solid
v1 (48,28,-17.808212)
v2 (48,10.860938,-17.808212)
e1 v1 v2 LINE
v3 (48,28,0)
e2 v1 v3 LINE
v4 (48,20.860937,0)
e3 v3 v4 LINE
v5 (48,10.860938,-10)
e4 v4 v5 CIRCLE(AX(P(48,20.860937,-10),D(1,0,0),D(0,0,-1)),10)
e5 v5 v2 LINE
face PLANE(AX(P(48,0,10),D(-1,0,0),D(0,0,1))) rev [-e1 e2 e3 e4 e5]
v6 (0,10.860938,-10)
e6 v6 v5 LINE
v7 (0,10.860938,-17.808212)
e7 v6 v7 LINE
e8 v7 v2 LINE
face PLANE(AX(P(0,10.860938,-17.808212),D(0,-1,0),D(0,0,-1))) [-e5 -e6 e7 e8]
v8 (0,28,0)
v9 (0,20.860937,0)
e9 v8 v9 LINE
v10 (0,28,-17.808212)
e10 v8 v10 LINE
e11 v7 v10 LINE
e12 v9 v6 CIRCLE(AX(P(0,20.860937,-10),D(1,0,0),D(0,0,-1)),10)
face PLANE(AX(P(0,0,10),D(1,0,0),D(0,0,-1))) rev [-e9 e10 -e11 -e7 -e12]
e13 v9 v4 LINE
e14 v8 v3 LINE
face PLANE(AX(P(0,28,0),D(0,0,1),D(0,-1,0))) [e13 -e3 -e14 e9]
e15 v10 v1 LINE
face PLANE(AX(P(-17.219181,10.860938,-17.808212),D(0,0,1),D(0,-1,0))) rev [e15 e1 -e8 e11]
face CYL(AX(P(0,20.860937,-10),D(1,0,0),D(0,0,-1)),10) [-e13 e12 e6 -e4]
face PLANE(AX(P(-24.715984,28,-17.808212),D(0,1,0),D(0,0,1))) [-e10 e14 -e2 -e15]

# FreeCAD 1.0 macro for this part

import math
import FreeCAD as App
import Part
import Sketcher
from FreeCAD import Vector
Q = App.Units.Quantity


def edges_at(feature, points):
    """Names of the edges that pass closest to the given points."""
    edges = feature.Shape.Edges
    near = lambda p: min(range(len(edges)), key=lambda i: edges[i].distToShape(Part.Vertex(*p))[0])
    return sorted({f"Edge{near(p) + 1}" for p in points})

doc = App.newDocument("Part")
body = doc.addObject("PartDesign::Body", "Body")

sketch1 = body.newObject("Sketcher::SketchObject", "Sketch")
sketch1.AttachmentSupport = (doc.getObject("XY_Plane"), [""])
sketch1.MapMode = "FlatFace"
sketch1.addGeometry([
    Part.LineSegment(Vector(0, 53, 0), Vector(0, 0, 0)),
    Part.LineSegment(Vector(0, 0, 0), Vector(48, 0, 0)),
    Part.LineSegment(Vector(48, 0, 0), Vector(48, 53, 0)),
    Part.LineSegment(Vector(48, 53, 0), Vector(0, 53, 0)),
], False)
sketch1.addConstraint([
    Sketcher.Constraint("Coincident", 0, 2, 1, 1),
    Sketcher.Constraint("Coincident", 1, 2, 2, 1),
    Sketcher.Constraint("Coincident", 2, 2, 3, 1),
    Sketcher.Constraint("Coincident", 3, 2, 0, 1),
    Sketcher.Constraint("Vertical", 0),
    Sketcher.Constraint("Horizontal", 1),
    Sketcher.Constraint("Vertical", 2),
    Sketcher.Constraint("Horizontal", 3),
    Sketcher.Constraint("Coincident", 0, 2, -1, 1),
    Sketcher.Constraint("DistanceX", 1, 1, 1, 2, Q("48 mm")),
    Sketcher.Constraint("DistanceY", 0, 2, 0, 1, Q("53 mm")),
])
pad1 = body.newObject("PartDesign::Pad", "Pad")
pad1.Profile = sketch1
pad1.Length = 10

sketch2 = body.newObject("Sketcher::SketchObject", "Sketch001")
sketch2.AttachmentSupport = (doc.getObject("XY_Plane"), [""])
sketch2.MapMode = "FlatFace"
sketch2.addGeometry([
    Part.LineSegment(Vector(48, 0, 0), Vector(48, -6, 0)),
    Part.LineSegment(Vector(48, -6, 0), Vector(0, -6, 0)),
    Part.LineSegment(Vector(0, -6, 0), Vector(0, 0, 0)),
    Part.LineSegment(Vector(0, 0, 0), Vector(48, 0, 0)),
], False)
sketch2.addConstraint([
    Sketcher.Constraint("Coincident", 0, 2, 1, 1),
    Sketcher.Constraint("Coincident", 1, 2, 2, 1),
    Sketcher.Constraint("Coincident", 2, 2, 3, 1),
    Sketcher.Constraint("Coincident", 3, 2, 0, 1),
    Sketcher.Constraint("Vertical", 0),
    Sketcher.Constraint("Horizontal", 1),
    Sketcher.Constraint("Vertical", 2),
    Sketcher.Constraint("Horizontal", 3),
    Sketcher.Constraint("Coincident", 2, 2, -1, 1),
    Sketcher.Constraint("DistanceX", 1, 2, 1, 1, Q("48 mm")),
    Sketcher.Constraint("DistanceY", 0, 2, 0, 1, Q("5.616325 mm")),
])
pad2 = body.newObject("PartDesign::Pad", "Pad001")
pad2.Profile = sketch2
pad2.Length = 33.191788

sketch3 = body.newObject("Sketcher::SketchObject", "Sketch002")
sketch3.AttachmentSupport = (doc.getObject("XY_Plane"), [""])
sketch3.MapMode = "FlatFace"
sketch3.AttachmentOffset = App.Placement(Vector(0, 0, 10), App.Rotation())
sketch3.addGeometry([
    Part.LineSegment(Vector(0, 53, 0), Vector(0, 43, 0)),
    Part.LineSegment(Vector(0, 43, 0), Vector(4, 43, 0)),
    Part.LineSegment(Vector(4, 43, 0), Vector(4, 53, 0)),
    Part.LineSegment(Vector(4, 53, 0), Vector(0, 53, 0)),
    Part.LineSegment(Vector(44, 53, 0), Vector(44, 43, 0)),
    Part.LineSegment(Vector(44, 43, 0), Vector(48, 43, 0)),
    Part.LineSegment(Vector(48, 43, 0), Vector(48, 53, 0)),
    Part.LineSegment(Vector(48, 53, 0), Vector(44, 53, 0)),
], False)
sketch3.addConstraint([
    Sketcher.Constraint("Coincident", 0, 2, 1, 1),
    Sketcher.Constraint("Coincident", 1, 2, 2, 1),
    Sketcher.Constraint("Coincident", 2, 2, 3, 1),
    Sketcher.Constraint("Coincident", 3, 2, 0, 1),
    Sketcher.Constraint("Coincident", 4, 2, 5, 1),
    Sketcher.Constraint("Coincident", 5, 2, 6, 1),
    Sketcher.Constraint("Coincident", 6, 2, 7, 1),
    Sketcher.Constraint("Coincident", 7, 2, 4, 1),
    Sketcher.Constraint("Vertical", 0),
    Sketcher.Constraint("Horizontal", 1),
    Sketcher.Constraint("Vertical", 2),
    Sketcher.Constraint("Horizontal", 3),
    Sketcher.Constraint("Vertical", 4),
    Sketcher.Constraint("Horizontal", 5),
    Sketcher.Constraint("Vertical", 6),
    Sketcher.Constraint("Horizontal", 7),
    Sketcher.Constraint("PointOnObject", 0, 2, -2),
    Sketcher.Constraint("Horizontal", 1, 2, 4, 2),
    Sketcher.Constraint("Horizontal", 3, 2, 6, 2),
    Sketcher.Constraint("Equal", 3, 5),
    Sketcher.Constraint("DistanceX", 1, 1, 1, 2, Q("4 mm")),
    Sketcher.Constraint("DistanceY", 0, 2, 0, 1, Q("10 mm")),
    Sketcher.Constraint("DistanceY", -1, 1, 0, 2, Q("43 mm")),
    Sketcher.Constraint("DistanceX", -1, 1, 4, 2, Q("44 mm")),
])
pad3 = body.newObject("PartDesign::Pad", "Pad002")
pad3.Profile = sketch3
pad3.Length = 40

sketch4 = body.newObject("Sketcher::SketchObject", "Sketch003")
sketch4.AttachmentSupport = (doc.getObject("XY_Plane"), [""])
sketch4.MapMode = "FlatFace"
sketch4.AttachmentOffset = App.Placement(Vector(0, 0, 10), App.Rotation())
sketch4.addGeometry([
    Part.LineSegment(Vector(0, 11, 0), Vector(0, 0, 0)),
    Part.LineSegment(Vector(0, 0, 0), Vector(48, 0, 0)),
    Part.LineSegment(Vector(48, 0, 0), Vector(48, 11, 0)),
    Part.LineSegment(Vector(48, 11, 0), Vector(0, 11, 0)),
], False)
sketch4.addConstraint([
    Sketcher.Constraint("Coincident", 0, 2, 1, 1),
    Sketcher.Constraint("Coincident", 1, 2, 2, 1),
    Sketcher.Constraint("Coincident", 2, 2, 3, 1),
    Sketcher.Constraint("Coincident", 3, 2, 0, 1),
    Sketcher.Constraint("Vertical", 0),
    Sketcher.Constraint("Horizontal", 1),
    Sketcher.Constraint("Vertical", 2),
    Sketcher.Constraint("Horizontal", 3),
    Sketcher.Constraint("Coincident", 0, 2, -1, 1),
    Sketcher.Constraint("DistanceX", 1, 1, 1, 2, Q("48 mm")),
    Sketcher.Constraint("DistanceY", 0, 2, 0, 1, Q("10.860938 mm")),
])
pad4 = body.newObject("PartDesign::Pad", "Pad003")
pad4.Profile = sketch4
pad4.Length = 23.191788

sketch5 = body.newObject("Sketcher::SketchObject", "Sketch004")
sketch5.AttachmentSupport = (doc.getObject("XZ_Plane"), [""])
sketch5.MapMode = "FlatFace"
sketch5.AttachmentOffset = App.Placement(Vector(0, 0, 5.616325), App.Rotation())
sketch5.addGeometry([
    Part.LineSegment(Vector(0, 33, 0), Vector(0, 28, 0)),
    Part.LineSegment(Vector(0, 28, 0), Vector(48, 28, 0)),
    Part.LineSegment(Vector(48, 28, 0), Vector(48, 33, 0)),
    Part.LineSegment(Vector(48, 33, 0), Vector(0, 33, 0)),
], False)
sketch5.addConstraint([
    Sketcher.Constraint("Coincident", 0, 2, 1, 1),
    Sketcher.Constraint("Coincident", 1, 2, 2, 1),
    Sketcher.Constraint("Coincident", 2, 2, 3, 1),
    Sketcher.Constraint("Coincident", 3, 2, 0, 1),
    Sketcher.Constraint("Vertical", 0),
    Sketcher.Constraint("Horizontal", 1),
    Sketcher.Constraint("Vertical", 2),
    Sketcher.Constraint("Horizontal", 3),
    Sketcher.Constraint("PointOnObject", 0, 2, -2),
    Sketcher.Constraint("DistanceX", 1, 1, 1, 2, Q("48 mm")),
    Sketcher.Constraint("DistanceY", 0, 2, 0, 1, Q("5 mm")),
    Sketcher.Constraint("DistanceY", -1, 1, 0, 2, Q("28.191788 mm")),
])
pad5 = body.newObject("PartDesign::Pad", "Pad004")
pad5.Profile = sketch5
pad5.Length = 42.3

sketch6 = body.newObject("Sketcher::SketchObject", "Sketch005")
sketch6.AttachmentSupport = (doc.getObject("YZ_Plane"), [""])
sketch6.MapMode = "FlatFace"
sketch6.addGeometry([
    Part.LineSegment(Vector(11, -13, 0), Vector(-6, -13, 0)),
    Part.LineSegment(Vector(-6, -13, 0), Vector(-6, 0, 0)),
    Part.LineSegment(Vector(-6, 0, 0), Vector(11, 0, 0)),
    Part.LineSegment(Vector(11, 0, 0), Vector(11, -13, 0)),
], False)
sketch6.addConstraint([
    Sketcher.Constraint("Coincident", 0, 2, 1, 1),
    Sketcher.Constraint("Coincident", 1, 2, 2, 1),
    Sketcher.Constraint("Coincident", 2, 2, 3, 1),
    Sketcher.Constraint("Coincident", 3, 2, 0, 1),
    Sketcher.Constraint("Horizontal", 0),
    Sketcher.Constraint("Vertical", 1),
    Sketcher.Constraint("Horizontal", 2),
    Sketcher.Constraint("Vertical", 3),
    Sketcher.Constraint("PointOnObject", 1, 2, -1),
    Sketcher.Constraint("DistanceX", 0, 2, 0, 1, Q("16.477263 mm")),
    Sketcher.Constraint("DistanceY", 1, 1, 1, 2, Q("12.808212 mm")),
    Sketcher.Constraint("DistanceX", 0, 2, -1, 1, Q("5.616325 mm")),
])
pad6 = body.newObject("PartDesign::Pad", "Pad005")
pad6.Profile = sketch6
pad6.Length = 48

sketch7 = body.newObject("Sketcher::SketchObject", "Sketch006")
sketch7.AttachmentSupport = (doc.getObject("XY_Plane"), [""])
sketch7.MapMode = "FlatFace"
sketch7.AttachmentOffset = App.Placement(Vector(0, 0, 28.191788), App.Rotation())
sketch7.addGeometry(Part.Circle(Vector(24, -27, 0), Vector(0, 0, 1), 12), False)
sketch7.addConstraint([
    Sketcher.Constraint("Diameter", 0, Q("23 mm")),
    Sketcher.Constraint("DistanceX", -1, 1, 0, 3, Q("24 mm")),
    Sketcher.Constraint("DistanceY", 0, 3, -1, 1, Q("26.616325 mm")),
])
pocket1 = body.newObject("PartDesign::Pocket", "Pocket")
pocket1.Profile = sketch7
pocket1.Type = "UpToFirst"
pocket1.Reversed = True

sketch8 = body.newObject("Sketcher::SketchObject", "Sketch007")
sketch8.AttachmentSupport = (doc.getObject("XY_Plane"), [""])
sketch8.MapMode = "FlatFace"
sketch8.AttachmentOffset = App.Placement(Vector(0, 0, 28.191788), App.Rotation())
sketch8.addGeometry(Part.Circle(Vector(39.5, -11.1, 0), Vector(0, 0, 1), 2), False)
sketch8.addConstraint([
    Sketcher.Constraint("Diameter", 0, Q("4 mm")),
    Sketcher.Constraint("DistanceX", -1, 1, 0, 3, Q("39.5 mm")),
    Sketcher.Constraint("DistanceY", 0, 3, -1, 1, Q("11.116325 mm")),
])
pocket2 = body.newObject("PartDesign::Pocket", "Pocket001")
pocket2.Profile = sketch8
pocket2.Type = "UpToFirst"
pocket2.Reversed = True

sketch9 = body.newObject("Sketcher::SketchObject", "Sketch008")
sketch9.AttachmentSupport = (doc.getObject("XY_Plane"), [""])
sketch9.MapMode = "FlatFace"
sketch9.AttachmentOffset = App.Placement(Vector(0, 0, 28.191788), App.Rotation())
sketch9.addGeometry(Part.Circle(Vector(39.5, -42.1, 0), Vector(0, 0, 1), 2), False)
sketch9.addConstraint([
    Sketcher.Constraint("Diameter", 0, Q("4 mm")),
    Sketcher.Constraint("DistanceX", -1, 1, 0, 3, Q("39.5 mm")),
    Sketcher.Constraint("DistanceY", 0, 3, -1, 1, Q("42.116325 mm")),
])
pocket3 = body.newObject("PartDesign::Pocket", "Pocket002")
pocket3.Profile = sketch9
pocket3.Type = "UpToFirst"
pocket3.Reversed = True

sketch10 = body.newObject("Sketcher::SketchObject", "Sketch009")
sketch10.AttachmentSupport = (doc.getObject("XY_Plane"), [""])
sketch10.MapMode = "FlatFace"
sketch10.AttachmentOffset = App.Placement(Vector(0, 0, 28.191788), App.Rotation())
sketch10.addGeometry(Part.Circle(Vector(8.5, -11.1, 0), Vector(0, 0, 1), 2), False)
sketch10.addConstraint([
    Sketcher.Constraint("Diameter", 0, Q("4 mm")),
    Sketcher.Constraint("DistanceX", -1, 1, 0, 3, Q("8.5 mm")),
    Sketcher.Constraint("DistanceY", 0, 3, -1, 1, Q("11.116325 mm")),
])
pocket4 = body.newObject("PartDesign::Pocket", "Pocket003")
pocket4.Profile = sketch10
pocket4.Type = "UpToFirst"
pocket4.Reversed = True

sketch11 = body.newObject("Sketcher::SketchObject", "Sketch010")
sketch11.AttachmentSupport = (doc.getObject("XY_Plane"), [""])
sketch11.MapMode = "FlatFace"
sketch11.AttachmentOffset = App.Placement(Vector(0, 0, 28.191788), App.Rotation())
sketch11.addGeometry(Part.Circle(Vector(8.5, -42.1, 0), Vector(0, 0, 1), 2), False)
sketch11.addConstraint([
    Sketcher.Constraint("Diameter", 0, Q("4 mm")),
    Sketcher.Constraint("DistanceX", -1, 1, 0, 3, Q("8.5 mm")),
    Sketcher.Constraint("DistanceY", 0, 3, -1, 1, Q("42.116325 mm")),
])
pocket5 = body.newObject("PartDesign::Pocket", "Pocket004")
pocket5.Profile = sketch11
pocket5.Type = "UpToFirst"
pocket5.Reversed = True
doc.recompute()

fillet = body.newObject("PartDesign::Fillet", "Fillet")
fillet.Base = (pocket5, edges_at(pocket5, [(24, 10.861, 0)]))
fillet.Radius = 10
doc.recompute()

fillet2 = body.newObject("PartDesign::Fillet", "Fillet001")
fillet2.Base = (fillet, edges_at(fillet, [(2, 43, 10), (46, 43, 10)]))
fillet2.Radius = 4

sketch12 = body.newObject("Sketcher::SketchObject", "Sketch011")
sketch12.AttachmentSupport = (doc.getObject("YZ_Plane"), [""])
sketch12.MapMode = "FlatFace"
sketch12.AttachmentOffset = App.Placement(Vector(0, 0, 48), App.Rotation())
sketch12.addGeometry([
    Part.LineSegment(Vector(11, -13, 0), Vector(-6, -13, 0)),
    Part.LineSegment(Vector(-6, -13, 0), Vector(-6, -18, 0)),
    Part.LineSegment(Vector(-6, -18, 0), Vector(11, -18, 0)),
    Part.LineSegment(Vector(11, -18, 0), Vector(11, -13, 0)),
], False)
sketch12.addConstraint([
    Sketcher.Constraint("Coincident", 0, 2, 1, 1),
    Sketcher.Constraint("Coincident", 1, 2, 2, 1),
    Sketcher.Constraint("Coincident", 2, 2, 3, 1),
    Sketcher.Constraint("Coincident", 3, 2, 0, 1),
    Sketcher.Constraint("Horizontal", 0),
    Sketcher.Constraint("Vertical", 1),
    Sketcher.Constraint("Horizontal", 2),
    Sketcher.Constraint("Vertical", 3),
    Sketcher.Constraint("DistanceY", 1, 2, 1, 1, Q("5 mm")),
    Sketcher.Constraint("DistanceX", 0, 2, 0, 1, Q("16.477263 mm")),
    Sketcher.Constraint("DistanceX", 0, 2, -1, 1, Q("5.616325 mm")),
    Sketcher.Constraint("DistanceY", 0, 2, -1, 1, Q("12.808212 mm")),
])
pad7 = body.newObject("PartDesign::Pad", "Pad006")
pad7.Profile = sketch12
pad7.Length = 48
pad7.Reversed = True

sketch13 = body.newObject("Sketcher::SketchObject", "Sketch012")
sketch13.AttachmentSupport = (doc.getObject("XY_Plane"), [""])
sketch13.MapMode = "FlatFace"
sketch13.AttachmentOffset = App.Placement(Vector(0, 0, 10), App.Rotation())
sketch13.addGeometry([
    Part.LineSegment(Vector(12.4, 37, 0), Vector(9, 39, 0)),
    Part.LineSegment(Vector(9, 39, 0), Vector(5.6, 37, 0)),
    Part.LineSegment(Vector(5.6, 37, 0), Vector(5.6, 33, 0)),
    Part.LineSegment(Vector(5.6, 33, 0), Vector(9, 31, 0)),
    Part.LineSegment(Vector(9, 31, 0), Vector(12.4, 33, 0)),
    Part.LineSegment(Vector(12.4, 33, 0), Vector(12.4, 37, 0)),
    Part.LineSegment(Vector(35.6, 37, 0), Vector(35.6, 33, 0)),
    Part.LineSegment(Vector(35.6, 33, 0), Vector(39, 31, 0)),
    Part.LineSegment(Vector(39, 31, 0), Vector(42.4, 33, 0)),
    Part.LineSegment(Vector(42.4, 33, 0), Vector(42.4, 37, 0)),
    Part.LineSegment(Vector(42.4, 37, 0), Vector(39, 39, 0)),
    Part.LineSegment(Vector(39, 39, 0), Vector(35.6, 37, 0)),
], False)
sketch13.addConstraint([
    Sketcher.Constraint("Coincident", 0, 2, 1, 1),
    Sketcher.Constraint("Coincident", 1, 2, 2, 1),
    Sketcher.Constraint("Coincident", 2, 2, 3, 1),
    Sketcher.Constraint("Coincident", 3, 2, 4, 1),
    Sketcher.Constraint("Coincident", 4, 2, 5, 1),
    Sketcher.Constraint("Coincident", 5, 2, 0, 1),
    Sketcher.Constraint("Coincident", 6, 2, 7, 1),
    Sketcher.Constraint("Coincident", 7, 2, 8, 1),
    Sketcher.Constraint("Coincident", 8, 2, 9, 1),
    Sketcher.Constraint("Coincident", 9, 2, 10, 1),
    Sketcher.Constraint("Coincident", 10, 2, 11, 1),
    Sketcher.Constraint("Coincident", 11, 2, 6, 1),
    Sketcher.Constraint("Vertical", 2),
    Sketcher.Constraint("Vertical", 5),
    Sketcher.Constraint("Vertical", 6),
    Sketcher.Constraint("Vertical", 9),
    Sketcher.Constraint("Parallel", 0, 3),
    Sketcher.Constraint("Parallel", 1, 4),
    Sketcher.Constraint("Parallel", 3, 7),
    Sketcher.Constraint("Parallel", 4, 8),
    Sketcher.Constraint("Parallel", 7, 10),
    Sketcher.Constraint("Parallel", 8, 11),
    Sketcher.Constraint("Horizontal", 2, 2, 4, 2),
    Sketcher.Constraint("Horizontal", 1, 2, 5, 2),
    Sketcher.Constraint("Horizontal", 4, 2, 6, 2),
    Sketcher.Constraint("Horizontal", 3, 2, 7, 2),
    Sketcher.Constraint("Horizontal", 6, 2, 8, 2),
    Sketcher.Constraint("Horizontal", 5, 2, 9, 2),
    Sketcher.Constraint("Horizontal", 0, 2, 10, 2),
    Sketcher.Constraint("Vertical", 0, 2, 3, 2),
    Sketcher.Constraint("Angle", 0, Q("150 deg")),
    Sketcher.Constraint("DistanceX", -1, 1, 0, 2, Q("9 mm")),
    Sketcher.Constraint("DistanceX", -1, 1, 7, 2, Q("39 mm")),
    Sketcher.Constraint("DistanceX", -1, 1, 1, 2, Q("5.571 mm")),
    Sketcher.Constraint("DistanceY", 2, 2, 2, 1, Q("3.959468 mm")),
    Sketcher.Constraint("DistanceY", -1, 1, 0, 2, Q("38.959468 mm")),
])
pocket6 = body.newObject("PartDesign::Pocket", "Pocket005")
pocket6.Profile = sketch13
pocket6.Length = 6

sketch14 = body.newObject("Sketcher::SketchObject", "Sketch013")
sketch14.AttachmentSupport = (doc.getObject("XY_Plane"), [""])
sketch14.MapMode = "FlatFace"
sketch14.AttachmentOffset = App.Placement(Vector(0, 0, 4), App.Rotation())
sketch14.addGeometry([
    Part.Circle(Vector(9, 35, 0), Vector(0, 0, 1), 1.9),
    Part.Circle(Vector(39, 35, 0), Vector(0, 0, 1), 1.9),
], False)
sketch14.addConstraint([
    Sketcher.Constraint("Equal", 0, 1),
    Sketcher.Constraint("Horizontal", 0, 3, 1, 3),
    Sketcher.Constraint("DistanceX", -1, 1, 0, 3, Q("9 mm")),
    Sketcher.Constraint("DistanceY", -1, 1, 0, 3, Q("35 mm")),
    Sketcher.Constraint("DistanceX", -1, 1, 1, 3, Q("39 mm")),
    Sketcher.Constraint("Diameter", 0, Q("3.8608 mm")),
])
pocket7 = body.newObject("PartDesign::Pocket", "Pocket006")
pocket7.Profile = sketch14
pocket7.Length = 6

sketch15 = body.newObject("Sketcher::SketchObject", "Sketch014")
sketch15.AttachmentSupport = (doc.getObject("XZ_Plane"), [""])
sketch15.MapMode = "FlatFace"
sketch15.AttachmentOffset = App.Placement(Vector(0, 0, -53), App.Rotation())
sketch15.addGeometry([
    Part.LineSegment(Vector(0, 0, 0), Vector(0, 50, 0)),
    Part.LineSegment(Vector(0, 50, 0), Vector(4, 50, 0)),
    Part.LineSegment(Vector(4, 50, 0), Vector(4, 10, 0)),
    Part.LineSegment(Vector(4, 10, 0), Vector(44, 10, 0)),
    Part.LineSegment(Vector(44, 10, 0), Vector(44, 50, 0)),
    Part.LineSegment(Vector(44, 50, 0), Vector(48, 50, 0)),
    Part.LineSegment(Vector(48, 50, 0), Vector(48, 0, 0)),
    Part.LineSegment(Vector(48, 0, 0), Vector(0, 0, 0)),
], False)
sketch15.addConstraint([
    Sketcher.Constraint("Coincident", 0, 2, 1, 1),
    Sketcher.Constraint("Coincident", 1, 2, 2, 1),
    Sketcher.Constraint("Coincident", 2, 2, 3, 1),
    Sketcher.Constraint("Coincident", 3, 2, 4, 1),
    Sketcher.Constraint("Coincident", 4, 2, 5, 1),
    Sketcher.Constraint("Coincident", 5, 2, 6, 1),
    Sketcher.Constraint("Coincident", 6, 2, 7, 1),
    Sketcher.Constraint("Coincident", 7, 2, 0, 1),
    Sketcher.Constraint("Vertical", 0),
    Sketcher.Constraint("Horizontal", 1),
    Sketcher.Constraint("Vertical", 2),
    Sketcher.Constraint("Horizontal", 3),
    Sketcher.Constraint("Vertical", 4),
    Sketcher.Constraint("Horizontal", 5),
    Sketcher.Constraint("Vertical", 6),
    Sketcher.Constraint("Horizontal", 7),
    Sketcher.Constraint("Coincident", 7, 2, -1, 1),
    Sketcher.Constraint("Horizontal", 1, 2, 4, 2),
    Sketcher.Constraint("Equal", 1, 5),
    Sketcher.Constraint("Equal", 3, 2),
    Sketcher.Constraint("DistanceX", 1, 1, 1, 2, Q("4 mm")),
    Sketcher.Constraint("DistanceX", 3, 1, 3, 2, Q("40 mm")),
    Sketcher.Constraint("DistanceY", 0, 1, 0, 2, Q("50 mm")),
])
pad8 = body.newObject("PartDesign::Pad", "Pad007")
pad8.Profile = sketch15
pad8.Length = 3
pad8.Reversed = True

sketch16 = body.newObject("Sketcher::SketchObject", "Sketch015")
sketch16.AttachmentSupport = (doc.getObject("YZ_Plane"), [""])
sketch16.MapMode = "FlatFace"
sketch16.AttachmentOffset = App.Placement(Vector(0, 0, 48), App.Rotation())
sketch16.addGeometry([
    Part.LineSegment(Vector(11, -10, 0), Vector(11, -18, 0)),
    Part.LineSegment(Vector(11, -18, 0), Vector(28, -18, 0)),
    Part.LineSegment(Vector(28, -18, 0), Vector(28, 0, 0)),
    Part.LineSegment(Vector(28, 0, 0), Vector(21, 0, 0)),
    Part.ArcOfCircle(Part.Circle(Vector(21, -10, 0), Vector(0, 0, 1), 10), math.radians(90), math.radians(180)),
], False)
sketch16.addConstraint([
    Sketcher.Constraint("Coincident", 0, 2, 1, 1),
    Sketcher.Constraint("Coincident", 1, 2, 2, 1),
    Sketcher.Constraint("Coincident", 2, 2, 3, 1),
    Sketcher.Constraint("Tangent", 3, 2, 4, 1),
    Sketcher.Constraint("Tangent", 4, 2, 0, 1),
    Sketcher.Constraint("Vertical", 0),
    Sketcher.Constraint("Horizontal", 1),
    Sketcher.Constraint("Vertical", 2),
    Sketcher.Constraint("Horizontal", 3),
    Sketcher.Constraint("PointOnObject", 2, 2, -1),
    Sketcher.Constraint("Radius", 4, Q("10 mm")),
    Sketcher.Constraint("DistanceX", -1, 1, 1, 2, Q("28 mm")),
    Sketcher.Constraint("DistanceX", 1, 1, 1, 2, Q("17.139063 mm")),
    Sketcher.Constraint("DistanceY", 0, 2, 0, 1, Q("7.808212 mm")),
])
pad9 = body.newObject("PartDesign::Pad", "Pad008")
pad9.Profile = sketch16
pad9.Length = 48
pad9.Reversed = True

sketch17 = body.newObject("Sketcher::SketchObject", "Sketch016")
sketch17.AttachmentSupport = (doc.getObject("YZ_Plane"), [""])
sketch17.MapMode = "FlatFace"
sketch17.AttachmentOffset = App.Placement(Vector(0, 0, 48), App.Rotation())
sketch17.addGeometry([
    Part.LineSegment(Vector(69, 77, 0), Vector(-53, 77, 0)),
    Part.LineSegment(Vector(-53, 77, 0), Vector(-53, -43, 0)),
    Part.LineSegment(Vector(-53, -43, 0), Vector(69, -43, 0)),
    Part.LineSegment(Vector(69, -43, 0), Vector(69, 77, 0)),
    Part.LineSegment(Vector(21, 0, 0), Vector(28, 0, 0)),
    Part.LineSegment(Vector(28, 0, 0), Vector(28, -18, 0)),
    Part.LineSegment(Vector(28, -18, 0), Vector(11, -18, 0)),
    Part.LineSegment(Vector(11, -18, 0), Vector(11, -10, 0)),
    Part.ArcOfCircle(Part.Circle(Vector(21, -10, 0), Vector(0, 0, 1), 10), math.radians(90), math.radians(180)),
], False)
sketch17.addConstraint([
    Sketcher.Constraint("Coincident", 0, 2, 1, 1),
    Sketcher.Constraint("Coincident", 1, 2, 2, 1),
    Sketcher.Constraint("Coincident", 2, 2, 3, 1),
    Sketcher.Constraint("Coincident", 3, 2, 0, 1),
    Sketcher.Constraint("Coincident", 4, 2, 5, 1),
    Sketcher.Constraint("Coincident", 5, 2, 6, 1),
    Sketcher.Constraint("Coincident", 6, 2, 7, 1),
    Sketcher.Constraint("Tangent", 7, 2, 8, 2),
    Sketcher.Constraint("Tangent", 8, 1, 4, 1),
    Sketcher.Constraint("Horizontal", 0),
    Sketcher.Constraint("Vertical", 1),
    Sketcher.Constraint("Horizontal", 2),
    Sketcher.Constraint("Vertical", 3),
    Sketcher.Constraint("Horizontal", 4),
    Sketcher.Constraint("Vertical", 5),
    Sketcher.Constraint("Horizontal", 6),
    Sketcher.Constraint("Vertical", 7),
    Sketcher.Constraint("PointOnObject", 4, 2, -1),
    Sketcher.Constraint("Radius", 8, Q("10 mm")),
    Sketcher.Constraint("DistanceX", -1, 1, 4, 2, Q("28 mm")),
    Sketcher.Constraint("DistanceY", 1, 2, 1, 1, Q("119.824942 mm")),
    Sketcher.Constraint("DistanceX", -1, 1, 2, 2, Q("69.3357 mm")),
    Sketcher.Constraint("DistanceY", 2, 2, 5, 2, Q("25.200602 mm")),
    Sketcher.Constraint("DistanceX", 0, 2, 0, 1, Q("122.237525 mm")),
    Sketcher.Constraint("DistanceX", 4, 1, 4, 2, Q("7.139063 mm")),
    Sketcher.Constraint("DistanceY", 5, 2, 5, 1, Q("17.808212 mm")),
])
pocket8 = body.newObject("PartDesign::Pocket", "Pocket007")
pocket8.Profile = sketch17
pocket8.Type = "ThroughAll"

doc.recompute()
